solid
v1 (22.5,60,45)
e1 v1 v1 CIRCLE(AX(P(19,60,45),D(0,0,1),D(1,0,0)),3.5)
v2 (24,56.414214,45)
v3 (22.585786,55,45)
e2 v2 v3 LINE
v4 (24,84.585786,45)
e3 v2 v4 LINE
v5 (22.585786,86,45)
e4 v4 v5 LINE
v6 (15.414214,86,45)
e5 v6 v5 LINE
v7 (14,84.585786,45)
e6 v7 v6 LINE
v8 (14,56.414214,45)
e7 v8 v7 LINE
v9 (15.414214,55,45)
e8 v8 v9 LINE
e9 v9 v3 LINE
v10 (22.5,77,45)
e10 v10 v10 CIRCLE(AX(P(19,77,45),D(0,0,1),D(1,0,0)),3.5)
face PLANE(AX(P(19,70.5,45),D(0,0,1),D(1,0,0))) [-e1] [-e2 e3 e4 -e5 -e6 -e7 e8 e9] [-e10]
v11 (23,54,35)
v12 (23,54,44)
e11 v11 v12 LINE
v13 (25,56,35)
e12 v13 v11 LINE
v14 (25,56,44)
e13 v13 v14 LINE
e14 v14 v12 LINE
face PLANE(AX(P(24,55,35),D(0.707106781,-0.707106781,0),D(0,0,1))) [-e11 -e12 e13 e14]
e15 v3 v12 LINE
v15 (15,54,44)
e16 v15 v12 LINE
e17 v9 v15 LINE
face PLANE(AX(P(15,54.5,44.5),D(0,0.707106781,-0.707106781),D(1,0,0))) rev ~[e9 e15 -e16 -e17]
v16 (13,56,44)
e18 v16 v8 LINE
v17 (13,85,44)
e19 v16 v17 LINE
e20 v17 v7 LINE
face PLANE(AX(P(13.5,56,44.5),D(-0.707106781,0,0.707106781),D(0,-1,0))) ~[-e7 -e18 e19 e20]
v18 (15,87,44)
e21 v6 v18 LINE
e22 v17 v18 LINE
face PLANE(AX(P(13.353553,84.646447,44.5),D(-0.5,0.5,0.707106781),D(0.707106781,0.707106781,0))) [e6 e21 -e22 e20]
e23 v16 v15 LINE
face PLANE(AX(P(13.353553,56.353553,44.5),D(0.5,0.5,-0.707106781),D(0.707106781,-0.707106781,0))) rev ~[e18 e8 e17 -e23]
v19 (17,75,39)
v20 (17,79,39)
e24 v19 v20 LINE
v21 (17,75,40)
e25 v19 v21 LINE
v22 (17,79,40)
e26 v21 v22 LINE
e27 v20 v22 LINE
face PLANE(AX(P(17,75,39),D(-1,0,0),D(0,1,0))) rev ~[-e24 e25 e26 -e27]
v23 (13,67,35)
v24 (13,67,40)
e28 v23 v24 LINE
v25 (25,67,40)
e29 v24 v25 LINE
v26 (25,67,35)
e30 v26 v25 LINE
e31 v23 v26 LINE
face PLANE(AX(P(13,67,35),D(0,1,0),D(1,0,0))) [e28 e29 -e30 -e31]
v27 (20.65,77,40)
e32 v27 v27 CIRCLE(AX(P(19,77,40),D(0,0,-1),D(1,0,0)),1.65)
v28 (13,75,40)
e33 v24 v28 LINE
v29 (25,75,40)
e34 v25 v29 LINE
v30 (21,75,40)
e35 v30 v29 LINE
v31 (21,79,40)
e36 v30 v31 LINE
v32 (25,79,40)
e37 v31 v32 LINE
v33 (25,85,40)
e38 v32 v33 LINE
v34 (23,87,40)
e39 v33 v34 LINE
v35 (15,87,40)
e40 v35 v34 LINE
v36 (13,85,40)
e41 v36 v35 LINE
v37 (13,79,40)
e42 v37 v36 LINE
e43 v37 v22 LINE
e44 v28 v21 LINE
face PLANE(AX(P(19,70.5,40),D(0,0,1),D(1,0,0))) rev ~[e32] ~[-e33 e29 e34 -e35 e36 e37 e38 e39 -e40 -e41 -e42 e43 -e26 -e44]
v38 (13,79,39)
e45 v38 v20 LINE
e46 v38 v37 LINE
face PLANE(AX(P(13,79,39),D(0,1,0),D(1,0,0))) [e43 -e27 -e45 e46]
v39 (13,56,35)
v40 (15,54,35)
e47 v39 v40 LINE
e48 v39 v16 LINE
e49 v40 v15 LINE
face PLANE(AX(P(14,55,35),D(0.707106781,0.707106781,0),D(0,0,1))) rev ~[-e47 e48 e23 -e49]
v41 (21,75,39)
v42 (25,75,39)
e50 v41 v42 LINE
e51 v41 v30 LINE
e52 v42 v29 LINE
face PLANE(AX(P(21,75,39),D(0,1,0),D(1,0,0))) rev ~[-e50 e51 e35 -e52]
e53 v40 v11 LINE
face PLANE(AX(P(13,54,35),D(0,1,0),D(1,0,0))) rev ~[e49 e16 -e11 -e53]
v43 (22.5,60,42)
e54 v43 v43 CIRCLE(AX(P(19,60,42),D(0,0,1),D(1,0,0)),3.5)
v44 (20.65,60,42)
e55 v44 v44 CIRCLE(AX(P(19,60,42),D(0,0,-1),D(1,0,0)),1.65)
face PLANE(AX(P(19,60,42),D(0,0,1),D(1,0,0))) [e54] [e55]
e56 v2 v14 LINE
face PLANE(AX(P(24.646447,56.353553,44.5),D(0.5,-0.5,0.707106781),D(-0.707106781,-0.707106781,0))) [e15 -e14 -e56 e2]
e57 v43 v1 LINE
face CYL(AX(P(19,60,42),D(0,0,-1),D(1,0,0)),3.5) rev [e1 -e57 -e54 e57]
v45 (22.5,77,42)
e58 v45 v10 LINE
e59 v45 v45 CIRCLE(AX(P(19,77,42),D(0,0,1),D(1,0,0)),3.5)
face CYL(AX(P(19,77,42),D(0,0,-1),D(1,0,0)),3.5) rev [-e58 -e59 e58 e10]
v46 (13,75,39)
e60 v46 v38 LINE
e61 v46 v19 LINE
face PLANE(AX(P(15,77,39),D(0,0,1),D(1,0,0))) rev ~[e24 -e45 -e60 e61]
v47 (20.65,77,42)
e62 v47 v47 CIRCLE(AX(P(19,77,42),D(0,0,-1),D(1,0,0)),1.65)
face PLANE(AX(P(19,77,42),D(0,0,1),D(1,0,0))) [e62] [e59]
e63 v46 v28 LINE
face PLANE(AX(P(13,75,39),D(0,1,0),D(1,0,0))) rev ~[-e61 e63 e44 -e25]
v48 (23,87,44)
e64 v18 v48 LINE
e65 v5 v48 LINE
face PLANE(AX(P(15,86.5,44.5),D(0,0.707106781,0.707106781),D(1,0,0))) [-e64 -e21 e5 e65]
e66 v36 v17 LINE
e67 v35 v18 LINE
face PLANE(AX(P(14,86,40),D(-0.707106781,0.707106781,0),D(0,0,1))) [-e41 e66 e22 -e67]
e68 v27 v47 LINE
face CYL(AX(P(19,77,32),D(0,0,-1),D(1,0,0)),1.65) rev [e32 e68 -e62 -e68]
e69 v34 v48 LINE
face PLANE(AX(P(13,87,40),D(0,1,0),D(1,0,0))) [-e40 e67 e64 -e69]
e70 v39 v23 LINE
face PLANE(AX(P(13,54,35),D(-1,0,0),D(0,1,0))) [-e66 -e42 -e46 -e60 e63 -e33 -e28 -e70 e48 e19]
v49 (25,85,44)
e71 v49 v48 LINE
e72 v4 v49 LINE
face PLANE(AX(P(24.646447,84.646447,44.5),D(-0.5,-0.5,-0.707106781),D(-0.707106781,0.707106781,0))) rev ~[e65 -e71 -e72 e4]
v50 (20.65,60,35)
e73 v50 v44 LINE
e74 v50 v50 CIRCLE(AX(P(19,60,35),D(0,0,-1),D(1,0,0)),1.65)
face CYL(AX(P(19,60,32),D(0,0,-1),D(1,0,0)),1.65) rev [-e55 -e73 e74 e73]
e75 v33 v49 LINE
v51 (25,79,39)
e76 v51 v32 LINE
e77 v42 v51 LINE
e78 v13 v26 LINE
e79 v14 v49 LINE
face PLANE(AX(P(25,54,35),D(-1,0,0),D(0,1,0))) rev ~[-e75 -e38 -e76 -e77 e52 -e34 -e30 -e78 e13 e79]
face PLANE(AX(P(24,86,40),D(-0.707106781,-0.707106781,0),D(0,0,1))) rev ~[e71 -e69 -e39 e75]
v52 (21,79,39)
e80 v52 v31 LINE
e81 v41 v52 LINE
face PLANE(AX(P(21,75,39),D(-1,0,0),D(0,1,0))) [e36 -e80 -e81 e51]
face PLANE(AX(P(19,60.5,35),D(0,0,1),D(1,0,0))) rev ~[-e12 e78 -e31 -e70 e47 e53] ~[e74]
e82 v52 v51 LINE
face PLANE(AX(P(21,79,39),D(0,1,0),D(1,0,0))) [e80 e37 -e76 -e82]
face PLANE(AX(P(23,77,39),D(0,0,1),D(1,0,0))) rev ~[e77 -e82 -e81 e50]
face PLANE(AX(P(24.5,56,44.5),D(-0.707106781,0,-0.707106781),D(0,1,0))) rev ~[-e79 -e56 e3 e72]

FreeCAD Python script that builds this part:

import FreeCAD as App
import Part
import Sketcher


def edges_at(feature, points):
    """Names of the edges that pass closest to the given points."""
    edges = feature.Shape.Edges
    near = lambda p: min(range(len(edges)), key=lambda i: edges[i].distToShape(Part.Vertex(*p))[0])
    return sorted({f"Edge{near(p) + 1}" for p in points})


def add_polygon(sketch, points):
    """Adds a closed chain of lines whose ends are joined by coincident constraints."""
    first, n = sketch.GeometryCount, len(points)
    for a, b in zip(points, points[1:] + points[:1]):
        sketch.addGeometry(Part.LineSegment(App.Vector(*a, 0), App.Vector(*b, 0)), False)
    for i in range(n):
        sketch.addConstraint(Sketcher.Constraint("Coincident", first + i, 2, first + (i + 1) % n, 1))

doc = App.newDocument("Part")
body = doc.addObject("PartDesign::Body", "Body")

sketch1 = doc.addObject("Sketcher::SketchObject", "Sketch")
body.addObject(sketch1)
sketch1.AttachmentSupport = (doc.XY_Plane, [""])
sketch1.MapMode = "FlatFace"
sketch1.AttachmentOffset = App.Placement(App.Vector(0, 0, 32), App.Rotation())
sketch1.addGeometry(Part.Circle(App.Vector(19, 77, 0), App.Vector(0, 0, 1), 3.5), False)
sketch1.addConstraint([
    Sketcher.Constraint("Diameter", 0, 7.0),
    Sketcher.Constraint("DistanceX", -1, 1, 0, 3, 19.0),
    Sketcher.Constraint("DistanceY", -1, 1, 0, 3, 77.0),
])
pad1 = doc.addObject("PartDesign::Pad", "Pad")
body.addObject(pad1)
pad1.Profile = sketch1
pad1.Length = 3
body2 = doc.addObject("PartDesign::Body", "Body001")
body2.AllowCompound = True

sketch2 = doc.addObject("Sketcher::SketchObject", "Sketch001")
body2.addObject(sketch2)
sketch2.AttachmentSupport = (doc.getObject("XY_Plane001"), [""])
sketch2.MapMode = "FlatFace"
sketch2.AttachmentOffset = App.Placement(App.Vector(0, 0, 32), App.Rotation())
sketch2.addGeometry(Part.Circle(App.Vector(19, 60, 0), App.Vector(0, 0, 1), 3.5), False)
sketch2.addConstraint([
    Sketcher.Constraint("Diameter", 0, 7.0),
    Sketcher.Constraint("DistanceX", -1, 1, 0, 3, 19.0),
    Sketcher.Constraint("DistanceY", -1, 1, 0, 3, 60.0),
])
pad2 = doc.addObject("PartDesign::Pad", "Pad001")
body2.addObject(pad2)
pad2.Profile = sketch2
pad2.Length = 3
doc.recompute()

boolean = doc.addObject("PartDesign::Boolean", "Boolean")
body2.addObject(boolean)
boolean.Type = "Fuse"
boolean.addObjects([body])
body3 = doc.addObject("PartDesign::Body", "Body002")
body3.AllowCompound = True
doc.recompute()

body2.Placement = App.Placement(App.Vector(0, 0, 10), App.Rotation(App.Vector(0, 0, 1), 0))
boolean2 = doc.addObject("PartDesign::Boolean", "Boolean001")
body3.addObject(boolean2)
boolean2.Type = "Fuse"
boolean2.addObjects([body2])
body4 = doc.addObject("PartDesign::Body", "Body003")

sketch3 = doc.addObject("Sketcher::SketchObject", "Sketch002")
body4.addObject(sketch3)
sketch3.AttachmentSupport = (doc.getObject("XY_Plane003"), [""])
sketch3.MapMode = "FlatFace"
sketch3.AttachmentOffset = App.Placement(App.Vector(0, 0, 32), App.Rotation())
sketch3.addGeometry(Part.Circle(App.Vector(19, 60, 0), App.Vector(0, 0, 1), 1.6), False)
sketch3.addConstraint([
    Sketcher.Constraint("Diameter", 0, 3.3),
    Sketcher.Constraint("DistanceX", -1, 1, 0, 3, 19.0),
    Sketcher.Constraint("DistanceY", -1, 1, 0, 3, 60.0),
])
pad3 = doc.addObject("PartDesign::Pad", "Pad002")
body4.addObject(pad3)
pad3.Profile = sketch3
pad3.Length = 15
body5 = doc.addObject("PartDesign::Body", "Body004")
body5.AllowCompound = True

sketch4 = doc.addObject("Sketcher::SketchObject", "Sketch003")
body5.addObject(sketch4)
sketch4.AttachmentSupport = (doc.getObject("XY_Plane004"), [""])
sketch4.MapMode = "FlatFace"
sketch4.AttachmentOffset = App.Placement(App.Vector(0, 0, 32), App.Rotation())
sketch4.addGeometry(Part.Circle(App.Vector(19, 77, 0), App.Vector(0, 0, 1), 1.6), False)
sketch4.addConstraint([
    Sketcher.Constraint("Diameter", 0, 3.3),
    Sketcher.Constraint("DistanceX", -1, 1, 0, 3, 19.0),
    Sketcher.Constraint("DistanceY", -1, 1, 0, 3, 77.0),
])
pad4 = doc.addObject("PartDesign::Pad", "Pad003")
body5.addObject(pad4)
pad4.Profile = sketch4
pad4.Length = 15
doc.recompute()

boolean3 = doc.addObject("PartDesign::Boolean", "Boolean002")
body5.addObject(boolean3)
boolean3.Type = "Fuse"
boolean3.addObjects([body4])
body6 = doc.addObject("PartDesign::Body", "Body005")

sketch5 = doc.addObject("Sketcher::SketchObject", "Sketch004")
body6.addObject(sketch5)
sketch5.AttachmentSupport = (doc.getObject("XY_Plane005"), [""])
sketch5.MapMode = "FlatFace"
sketch5.AttachmentOffset = App.Placement(App.Vector(0, 0, 35), App.Rotation())
add_polygon(sketch5, [(13, 67), (13, 54), (25, 54), (25, 67)])
sketch5.addConstraint([
    Sketcher.Constraint("Vertical", 0),
    Sketcher.Constraint("Horizontal", 1),
    Sketcher.Constraint("Vertical", 2),
    Sketcher.Constraint("Horizontal", 3),
    Sketcher.Constraint("DistanceX", 1, 1, 1, 2, 12.0),
    Sketcher.Constraint("DistanceY", 0, 2, 0, 1, 13.0),
    Sketcher.Constraint("DistanceX", -1, 1, 0, 2, 13.0),
    Sketcher.Constraint("DistanceY", -1, 1, 0, 2, 54.0),
])
pad5 = doc.addObject("PartDesign::Pad", "Pad004")
body6.addObject(pad5)
pad5.Profile = sketch5
pad5.Length = 5
body7 = doc.addObject("PartDesign::Body", "Body006")

sketch6 = doc.addObject("Sketcher::SketchObject", "Sketch005")
body7.addObject(sketch6)
sketch6.AttachmentSupport = (doc.getObject("XY_Plane006"), [""])
sketch6.MapMode = "FlatFace"
sketch6.AttachmentOffset = App.Placement(App.Vector(0, 0, 40), App.Rotation())
add_polygon(sketch6, [(13, 87), (13, 54), (25, 54), (25, 87)])
sketch6.addConstraint([
    Sketcher.Constraint("Vertical", 0),
    Sketcher.Constraint("Horizontal", 1),
    Sketcher.Constraint("Vertical", 2),
    Sketcher.Constraint("Horizontal", 3),
    Sketcher.Constraint("DistanceX", 1, 1, 1, 2, 12.0),
    Sketcher.Constraint("DistanceY", 0, 2, 0, 1, 33.0),
    Sketcher.Constraint("DistanceX", -1, 1, 0, 2, 13.0),
    Sketcher.Constraint("DistanceY", -1, 1, 0, 2, 54.0),
])
pad6 = doc.addObject("PartDesign::Pad", "Pad005")
body7.addObject(pad6)
pad6.Profile = sketch6
pad6.Length = 5
doc.recompute()

boolean4 = doc.addObject("PartDesign::Boolean", "Boolean003")
body7.addObject(boolean4)
boolean4.Type = "Fuse"
boolean4.addObjects([body6])
doc.recompute()

chamfer = doc.addObject("PartDesign::Chamfer", "Chamfer")
body7.addObject(chamfer)
chamfer.Base = (boolean4, edges_at(boolean4, [
    (13, 54, 40),
    (13, 87, 42.5),
    (25, 54, 40),
    (25, 87, 42.5),
]))
chamfer.Size = 2
doc.recompute()

chamfer2 = doc.addObject("PartDesign::Chamfer", "Chamfer001")
body7.addObject(chamfer2)
chamfer2.Base = (chamfer, edges_at(chamfer, [
    (13, 70.5, 45),
    (14, 55, 45),
    (14, 86, 45),
    (19, 54, 45),
    (19, 87, 45),
    (24, 55, 45),
    (24, 86, 45),
    (25, 70.5, 45),
]))
chamfer2.Size = 1
doc.recompute()

boolean5 = doc.addObject("PartDesign::Boolean", "Boolean004")
body7.addObject(boolean5)
boolean5.Type = "Cut"
boolean5.addObjects([body5])
doc.recompute()

boolean6 = doc.addObject("PartDesign::Boolean", "Boolean005")
body7.addObject(boolean6)
boolean6.Type = "Cut"
boolean6.addObjects([body3])
body8 = doc.addObject("PartDesign::Body", "Body007")

sketch7 = doc.addObject("Sketcher::SketchObject", "Sketch006")
body8.addObject(sketch7)
sketch7.AttachmentSupport = (doc.getObject("XY_Plane007"), [""])
sketch7.MapMode = "FlatFace"
add_polygon(sketch7, [(13, 79), (13, 75), (17, 75), (17, 79)])
sketch7.addConstraint([
    Sketcher.Constraint("Vertical", 0),
    Sketcher.Constraint("Horizontal", 1),
    Sketcher.Constraint("Vertical", 2),
    Sketcher.Constraint("Horizontal", 3),
    Sketcher.Constraint("Equal", 3, 0),
    Sketcher.Constraint("DistanceX", 1, 1, 1, 2, 4.0),
    Sketcher.Constraint("DistanceX", -1, 1, 0, 2, 13.0),
    Sketcher.Constraint("DistanceY", -1, 1, 0, 2, 75.0),
])
pad7 = doc.addObject("PartDesign::Pad", "Pad006")
body8.addObject(pad7)
pad7.Profile = sketch7
pad7.Length = 1
body9 = doc.addObject("PartDesign::Body", "Body008")
body9.AllowCompound = True

sketch8 = doc.addObject("Sketcher::SketchObject", "Sketch007")
body9.addObject(sketch8)
sketch8.AttachmentSupport = (doc.getObject("XY_Plane008"), [""])
sketch8.MapMode = "FlatFace"
add_polygon(sketch8, [(21, 79), (21, 75), (25, 75), (25, 79)])
sketch8.addConstraint([
    Sketcher.Constraint("Vertical", 0),
    Sketcher.Constraint("Horizontal", 1),
    Sketcher.Constraint("Vertical", 2),
    Sketcher.Constraint("Horizontal", 3),
    Sketcher.Constraint("Equal", 3, 0),
    Sketcher.Constraint("DistanceX", 1, 1, 1, 2, 4.0),
    Sketcher.Constraint("DistanceX", -1, 1, 0, 2, 21.0),
    Sketcher.Constraint("DistanceY", -1, 1, 0, 2, 75.0),
])
pad8 = doc.addObject("PartDesign::Pad", "Pad007")
body9.addObject(pad8)
pad8.Profile = sketch8
pad8.Length = 1
doc.recompute()

boolean7 = doc.addObject("PartDesign::Boolean", "Boolean006")
body9.addObject(boolean7)
boolean7.Type = "Fuse"
boolean7.addObjects([body8])
body10 = doc.addObject("PartDesign::Body", "Body009")
body10.AllowCompound = True
doc.recompute()

body9.Placement = App.Placement(App.Vector(0, 0, 39), App.Rotation(App.Vector(0, 0, 1), 0))
boolean8 = doc.addObject("PartDesign::Boolean", "Boolean007")
body10.addObject(boolean8)
boolean8.Type = "Fuse"
boolean8.addObjects([body9])
doc.recompute()

boolean9 = doc.addObject("PartDesign::Boolean", "Boolean008")
body10.addObject(boolean9)
boolean9.Type = "Fuse"
boolean9.addObjects([body7])

doc.recompute()
